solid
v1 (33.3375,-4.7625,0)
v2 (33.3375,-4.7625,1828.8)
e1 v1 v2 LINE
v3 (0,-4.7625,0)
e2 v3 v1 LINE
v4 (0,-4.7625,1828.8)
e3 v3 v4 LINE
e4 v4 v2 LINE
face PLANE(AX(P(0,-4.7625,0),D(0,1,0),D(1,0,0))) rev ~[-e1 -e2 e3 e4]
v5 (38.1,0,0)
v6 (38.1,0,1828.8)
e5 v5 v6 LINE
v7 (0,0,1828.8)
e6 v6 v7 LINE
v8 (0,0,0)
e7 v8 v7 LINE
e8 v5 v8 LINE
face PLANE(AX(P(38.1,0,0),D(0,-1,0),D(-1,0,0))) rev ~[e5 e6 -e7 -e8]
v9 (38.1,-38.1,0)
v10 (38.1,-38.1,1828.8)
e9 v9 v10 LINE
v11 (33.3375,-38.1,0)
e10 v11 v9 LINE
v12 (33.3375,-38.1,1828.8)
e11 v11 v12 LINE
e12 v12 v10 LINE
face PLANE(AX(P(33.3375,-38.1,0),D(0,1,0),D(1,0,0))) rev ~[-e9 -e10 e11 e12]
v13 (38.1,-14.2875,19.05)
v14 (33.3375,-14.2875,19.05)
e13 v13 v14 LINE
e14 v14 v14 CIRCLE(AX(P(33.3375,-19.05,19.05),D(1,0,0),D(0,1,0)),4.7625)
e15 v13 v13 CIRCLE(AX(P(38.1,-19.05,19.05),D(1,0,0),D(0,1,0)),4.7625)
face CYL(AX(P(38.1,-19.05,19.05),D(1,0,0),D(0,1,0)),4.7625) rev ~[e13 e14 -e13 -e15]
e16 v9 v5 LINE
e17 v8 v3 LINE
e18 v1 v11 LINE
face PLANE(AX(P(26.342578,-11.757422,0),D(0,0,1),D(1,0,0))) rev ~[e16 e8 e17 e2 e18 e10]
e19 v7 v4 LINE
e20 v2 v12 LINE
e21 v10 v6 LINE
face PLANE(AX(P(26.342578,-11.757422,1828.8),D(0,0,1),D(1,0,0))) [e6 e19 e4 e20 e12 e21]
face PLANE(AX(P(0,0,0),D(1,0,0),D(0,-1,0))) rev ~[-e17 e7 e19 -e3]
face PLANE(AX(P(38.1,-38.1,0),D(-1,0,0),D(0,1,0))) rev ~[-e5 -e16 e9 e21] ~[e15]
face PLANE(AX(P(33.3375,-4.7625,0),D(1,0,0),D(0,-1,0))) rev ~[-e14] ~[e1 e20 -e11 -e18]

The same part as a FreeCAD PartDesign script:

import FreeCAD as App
import Part
import Sketcher
from FreeCAD import Vector
Q = App.Units.Quantity


def add_polygon(sketch, points):
    """Adds a closed chain of lines whose ends are joined by coincident constraints."""
    first, n = sketch.GeometryCount, len(points)
    for a, b in zip(points, points[1:] + points[:1]):
        sketch.addGeometry(Part.LineSegment(App.Vector(*a, 0), App.Vector(*b, 0)), False)
    for i in range(n):
        sketch.addConstraint(Sketcher.Constraint("Coincident", first + i, 2, first + (i + 1) % n, 1))

doc = App.newDocument("Part")
body = doc.addObject("PartDesign::Body", "Body")

sketch1 = body.newObject("Sketcher::SketchObject", "Sketch")
sketch1.AttachmentSupport = (doc.getObject("XY_Plane"), [""])
sketch1.MapMode = "FlatFace"
add_polygon(sketch1, [(38.1, 0), (0, 0), (0, -4.7625), (33.3375, -4.7625), (33.3375, -38.1), (38.1, -38.1)])
sketch1.addConstraint(Sketcher.Constraint("Horizontal", 0))
sketch1.addConstraint(Sketcher.Constraint("Vertical", 1))
sketch1.addConstraint(Sketcher.Constraint("Horizontal", 2))
sketch1.addConstraint(Sketcher.Constraint("Vertical", 3))
sketch1.addConstraint(Sketcher.Constraint("Horizontal", 4))
sketch1.addConstraint(Sketcher.Constraint("Vertical", 5))
sketch1.addConstraint(Sketcher.Constraint("Coincident", 0, 2, -1, 1))
sketch1.addConstraint(Sketcher.Constraint("Equal", 4, 1))
sketch1.addConstraint(Sketcher.Constraint("Equal", 2, 3))
sketch1.addConstraint(Sketcher.Constraint("DistanceX", 0, 2, 0, 1, Q("1.5 in")))
sketch1.addConstraint(Sketcher.Constraint("DistanceX", 2, 1, 2, 2, Q("1.3125 in")))
pad1 = body.newObject("PartDesign::Pad", "Pad")
pad1.Profile = sketch1
pad1.Length = Q("72 in")

sketch2 = body.newObject("Sketcher::SketchObject", "Sketch001")
sketch2.AttachmentSupport = (doc.getObject("YZ_Plane"), [""])
sketch2.MapMode = "FlatFace"
sketch2.AttachmentOffset = App.Placement(Vector(0, 0, 1.5 * 25.4), App.Rotation())
sketch2.addGeometry(Part.Circle(Vector(-19.05, 19.05, 0), Vector(0, 0, 1), 4.7625), False)
sketch2.addConstraint(Sketcher.Constraint("Diameter", 0, Q("0.375 in")))
sketch2.addConstraint(Sketcher.Constraint("DistanceX", 0, 3, -1, 1, Q("0.75 in")))
sketch2.addConstraint(Sketcher.Constraint("DistanceY", -1, 1, 0, 3, Q("0.75 in")))
pocket1 = body.newObject("PartDesign::Pocket", "Pocket")
pocket1.Profile = sketch2
pocket1.Type = "ThroughAll"

doc.recompute()
